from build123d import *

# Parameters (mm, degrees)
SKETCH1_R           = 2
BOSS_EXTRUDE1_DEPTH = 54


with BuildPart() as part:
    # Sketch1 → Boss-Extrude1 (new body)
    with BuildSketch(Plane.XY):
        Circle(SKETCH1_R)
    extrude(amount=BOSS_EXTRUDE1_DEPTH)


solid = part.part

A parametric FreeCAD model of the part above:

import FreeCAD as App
import Part
import Sketcher

doc = App.newDocument("Part")
body = doc.addObject("PartDesign::Body", "Body")

sketch1 = body.newObject("Sketcher::SketchObject", "Sketch")
sketch1.AttachmentSupport = (doc.getObject("XY_Plane"), [""])
sketch1.MapMode = "FlatFace"
sketch1.addGeometry(Part.Circle(App.Vector(0, 0, 0), App.Vector(0, 0, 1), 2), False)
sketch1.addConstraint([
    Sketcher.Constraint("Coincident", 0, 3, -1, 1),
    Sketcher.Constraint("Diameter", 0, 4.0),
])
pad1 = body.newObject("PartDesign::Pad", "Pad")
pad1.Profile = sketch1
pad1.Length = 54

doc.recompute()
